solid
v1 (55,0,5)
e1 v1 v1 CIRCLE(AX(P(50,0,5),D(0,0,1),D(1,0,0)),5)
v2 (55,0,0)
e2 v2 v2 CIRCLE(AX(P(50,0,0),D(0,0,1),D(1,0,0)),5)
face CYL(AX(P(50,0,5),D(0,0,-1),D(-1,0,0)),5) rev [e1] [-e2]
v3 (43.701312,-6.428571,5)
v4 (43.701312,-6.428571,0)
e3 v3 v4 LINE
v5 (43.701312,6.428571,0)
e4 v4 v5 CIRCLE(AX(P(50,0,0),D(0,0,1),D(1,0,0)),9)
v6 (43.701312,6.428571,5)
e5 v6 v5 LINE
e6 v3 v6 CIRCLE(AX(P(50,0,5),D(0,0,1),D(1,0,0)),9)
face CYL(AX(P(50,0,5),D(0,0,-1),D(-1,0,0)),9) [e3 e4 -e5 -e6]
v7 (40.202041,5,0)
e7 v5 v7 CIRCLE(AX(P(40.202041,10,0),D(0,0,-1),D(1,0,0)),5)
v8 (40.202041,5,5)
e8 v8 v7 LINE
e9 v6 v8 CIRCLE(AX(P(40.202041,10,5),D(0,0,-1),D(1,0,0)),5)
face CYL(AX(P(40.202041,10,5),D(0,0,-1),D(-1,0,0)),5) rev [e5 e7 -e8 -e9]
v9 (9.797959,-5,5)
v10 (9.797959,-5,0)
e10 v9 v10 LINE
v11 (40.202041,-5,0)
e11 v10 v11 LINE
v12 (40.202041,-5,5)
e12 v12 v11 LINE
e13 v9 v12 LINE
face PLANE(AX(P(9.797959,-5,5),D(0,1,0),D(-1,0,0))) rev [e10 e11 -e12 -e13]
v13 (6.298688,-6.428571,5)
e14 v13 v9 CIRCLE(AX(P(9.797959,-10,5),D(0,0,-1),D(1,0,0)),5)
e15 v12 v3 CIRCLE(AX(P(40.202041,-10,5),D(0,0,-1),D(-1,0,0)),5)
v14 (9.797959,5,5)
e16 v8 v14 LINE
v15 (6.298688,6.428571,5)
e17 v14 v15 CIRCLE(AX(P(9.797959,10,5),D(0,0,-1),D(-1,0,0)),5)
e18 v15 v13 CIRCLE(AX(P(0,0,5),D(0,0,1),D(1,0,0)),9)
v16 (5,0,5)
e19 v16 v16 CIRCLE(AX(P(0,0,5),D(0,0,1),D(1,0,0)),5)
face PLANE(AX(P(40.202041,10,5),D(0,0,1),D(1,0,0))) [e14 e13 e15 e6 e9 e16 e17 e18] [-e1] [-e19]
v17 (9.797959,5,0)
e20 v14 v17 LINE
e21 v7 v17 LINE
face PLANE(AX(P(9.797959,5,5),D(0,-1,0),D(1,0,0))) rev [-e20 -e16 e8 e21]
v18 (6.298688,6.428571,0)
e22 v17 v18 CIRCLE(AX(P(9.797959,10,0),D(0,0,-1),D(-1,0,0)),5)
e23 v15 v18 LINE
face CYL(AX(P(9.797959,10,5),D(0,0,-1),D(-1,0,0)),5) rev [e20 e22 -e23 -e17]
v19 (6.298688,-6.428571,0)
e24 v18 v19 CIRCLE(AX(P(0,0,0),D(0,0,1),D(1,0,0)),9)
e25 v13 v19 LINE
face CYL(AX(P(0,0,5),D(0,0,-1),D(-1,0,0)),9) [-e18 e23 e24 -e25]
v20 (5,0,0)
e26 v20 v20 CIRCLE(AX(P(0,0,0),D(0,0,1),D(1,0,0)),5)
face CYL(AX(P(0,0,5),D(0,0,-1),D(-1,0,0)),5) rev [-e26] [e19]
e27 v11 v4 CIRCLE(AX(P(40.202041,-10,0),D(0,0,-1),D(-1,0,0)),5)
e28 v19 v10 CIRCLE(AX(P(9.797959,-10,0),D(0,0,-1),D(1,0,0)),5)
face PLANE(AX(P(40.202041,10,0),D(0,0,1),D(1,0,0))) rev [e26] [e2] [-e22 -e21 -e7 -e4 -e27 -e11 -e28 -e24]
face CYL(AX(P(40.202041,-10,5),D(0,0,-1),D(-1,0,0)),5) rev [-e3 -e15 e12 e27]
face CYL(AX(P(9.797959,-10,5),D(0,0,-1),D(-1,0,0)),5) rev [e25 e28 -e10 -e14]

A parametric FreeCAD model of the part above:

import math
import FreeCAD as App
import Part
import Sketcher
from FreeCAD import Vector
Q = App.Units.Quantity

doc = App.newDocument("Part")
body = doc.addObject("PartDesign::Body", "Body")

# Sketch on XY plane
sketch1 = body.newObject("Sketcher::SketchObject", "Sketch")
sketch1.AttachmentSupport = (doc.getObject("XY_Plane"), [""])
sketch1.MapMode = "FlatFace"
sketch1.addGeometry(Part.LineSegment(Vector(40.2, 5, 0), Vector(9.8, 5, 0)), False)
sketch1.addGeometry(Part.ArcOfCircle(Part.Circle(Vector(9.8, 10, 0), Vector(0, 0, 1), 5), math.radians(-134), math.radians(-90)), False)
sketch1.addGeometry(Part.ArcOfCircle(Part.Circle(Vector(0, 0, 0), Vector(0, 0, 1), 9), math.radians(46), math.radians(314)), False)
sketch1.addGeometry(Part.ArcOfCircle(Part.Circle(Vector(9.8, -10, 0), Vector(0, 0, 1), 5), math.radians(90), math.radians(134)), False)
sketch1.addGeometry(Part.LineSegment(Vector(9.8, -5, 0), Vector(40.2, -5, 0)), False)
sketch1.addGeometry(Part.ArcOfCircle(Part.Circle(Vector(40.2, -10, 0), Vector(0, 0, 1), 5), math.radians(46), math.radians(90)), False)
sketch1.addGeometry(Part.ArcOfCircle(Part.Circle(Vector(50, 0, 0), Vector(0, 0, 1), 9), math.radians(-134), math.radians(134)), False)
sketch1.addGeometry(Part.ArcOfCircle(Part.Circle(Vector(40.2, 10, 0), Vector(0, 0, 1), 5), math.radians(-90), math.radians(-46)), False)
sketch1.addGeometry(Part.Circle(Vector(50, 0, 0), Vector(0, 0, 1), 5), False)
sketch1.addGeometry(Part.Circle(Vector(0, 0, 0), Vector(0, 0, 1), 5), False)
sketch1.addConstraint(Sketcher.Constraint("Tangent", 0, 2, 1, 2))
sketch1.addConstraint(Sketcher.Constraint("Tangent", 1, 1, 2, 1))
sketch1.addConstraint(Sketcher.Constraint("Tangent", 2, 2, 3, 2))
sketch1.addConstraint(Sketcher.Constraint("Tangent", 3, 1, 4, 1))
sketch1.addConstraint(Sketcher.Constraint("Tangent", 4, 2, 5, 2))
sketch1.addConstraint(Sketcher.Constraint("Tangent", 5, 1, 6, 1))
sketch1.addConstraint(Sketcher.Constraint("Tangent", 6, 2, 7, 2))
sketch1.addConstraint(Sketcher.Constraint("Tangent", 7, 1, 0, 1))
sketch1.addConstraint(Sketcher.Constraint("Horizontal", 0))
sketch1.addConstraint(Sketcher.Constraint("Horizontal", 4))
sketch1.addConstraint(Sketcher.Constraint("Coincident", 2, 3, -1, 1))
sketch1.addConstraint(Sketcher.Constraint("Coincident", 9, 3, -1, 1))
sketch1.addConstraint(Sketcher.Constraint("Coincident", 8, 3, 6, 3))
sketch1.addConstraint(Sketcher.Constraint("Equal", 1, 3))
sketch1.addConstraint(Sketcher.Constraint("Equal", 3, 5))
sketch1.addConstraint(Sketcher.Constraint("Equal", 2, 6))
sketch1.addConstraint(Sketcher.Constraint("Equal", 5, 7))
sketch1.addConstraint(Sketcher.Constraint("Equal", 7, 8))
sketch1.addConstraint(Sketcher.Constraint("Equal", 8, 9))
sketch1.addConstraint(Sketcher.Constraint("Symmetric", 5, 3, 7, 3, -1))
sketch1.addConstraint(Sketcher.Constraint("Diameter", 8, Q("10 mm")))
sketch1.addConstraint(Sketcher.Constraint("Radius", 2, Q("9 mm")))
sketch1.addConstraint(Sketcher.Constraint("DistanceY", -1, 1, 1, 3, Q("10 mm")))
sketch1.addConstraint(Sketcher.Constraint("DistanceX", -1, 1, 6, 3, Q("50 mm")))
pad1 = body.newObject("PartDesign::Pad", "Pad")
pad1.Profile = sketch1
pad1.Length = 5

doc.recompute()
